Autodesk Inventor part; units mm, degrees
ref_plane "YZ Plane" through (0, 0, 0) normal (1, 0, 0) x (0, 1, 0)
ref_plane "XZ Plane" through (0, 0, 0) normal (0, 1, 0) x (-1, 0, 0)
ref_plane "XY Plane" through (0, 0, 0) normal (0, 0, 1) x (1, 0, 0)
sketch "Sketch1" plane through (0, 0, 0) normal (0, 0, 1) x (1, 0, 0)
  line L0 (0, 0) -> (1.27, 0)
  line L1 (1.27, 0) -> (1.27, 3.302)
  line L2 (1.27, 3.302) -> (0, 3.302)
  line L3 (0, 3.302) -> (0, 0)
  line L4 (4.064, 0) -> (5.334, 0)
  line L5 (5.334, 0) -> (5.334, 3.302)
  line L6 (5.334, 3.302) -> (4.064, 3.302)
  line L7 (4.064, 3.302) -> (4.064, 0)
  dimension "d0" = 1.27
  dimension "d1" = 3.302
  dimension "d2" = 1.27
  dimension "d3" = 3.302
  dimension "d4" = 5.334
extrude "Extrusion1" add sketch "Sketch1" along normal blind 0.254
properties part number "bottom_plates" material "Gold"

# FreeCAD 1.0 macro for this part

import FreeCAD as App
import Part
import Sketcher

V = App.Vector
Q = App.Units.Quantity


def add_polygon(sketch, points):
    """Adds a closed chain of lines whose ends are joined by coincident constraints."""
    first, n = sketch.GeometryCount, len(points)
    for a, b in zip(points, points[1:] + points[:1]):
        sketch.addGeometry(Part.LineSegment(App.Vector(*a, 0), App.Vector(*b, 0)), False)
    for i in range(n):
        sketch.addConstraint(Sketcher.Constraint("Coincident", first + i, 2, first + (i + 1) % n, 1))

doc = App.newDocument("Part")
params = doc.addObject("Spreadsheet::Sheet", "Params")
for row, (alias, value) in enumerate([
    ("sketch1_width", "0.05 in"),
    ("sketch1_height", "0.13 in"),
    ("pad1_length", "0.01 in"),
], start=1):
    params.set(f"A{row}", alias)
    params.set(f"B{row}", "=" + value)
    params.setAlias(f"B{row}", alias)

body = doc.addObject("PartDesign::Body", "Body")
body.AllowCompound = True

sketch1 = doc.addObject("Sketcher::SketchObject", "Sketch")
body.addObject(sketch1)
sketch1.AttachmentSupport = (doc.XY_Plane, [""])
sketch1.MapMode = "FlatFace"
add_polygon(sketch1, [(0, 3.3), (0, 0), (1.3, 0), (1.3, 3.3)])
add_polygon(sketch1, [(4.1, 3.3), (4.1, 0), (5.3, 0), (5.3, 3.3)])
sketch1.addConstraint([
    Sketcher.Constraint("Vertical", 0),
    Sketcher.Constraint("Horizontal", 1),
    Sketcher.Constraint("Vertical", 2),
    Sketcher.Constraint("Horizontal", 3),
    Sketcher.Constraint("Vertical", 4),
    Sketcher.Constraint("Horizontal", 5),
    Sketcher.Constraint("Vertical", 6),
    Sketcher.Constraint("Horizontal", 7),
    Sketcher.Constraint("Coincident", 0, 2, -1, 1),
    Sketcher.Constraint("PointOnObject", 4, 2, -1),
    Sketcher.Constraint("Horizontal", 3, 2, 6, 2),
    Sketcher.Constraint("Equal", 3, 5),
    Sketcher.Constraint("DistanceX", 1, 1, 1, 2, Q("0.05 in")),
    Sketcher.Constraint("DistanceY", 0, 2, 0, 1, Q("0.13 in")),
    Sketcher.Constraint("DistanceX", -1, 1, 5, 2, Q("0.21 in")),
])
sketch1.setExpression("Constraints[20]", "Params.sketch1_width")
sketch1.setExpression("Constraints[21]", "Params.sketch1_height")
pad1 = doc.addObject("PartDesign::Pad", "Pad")
body.addObject(pad1)
pad1.Profile = sketch1
pad1.setExpression("Length", "Params.pad1_length")

doc.recompute()
